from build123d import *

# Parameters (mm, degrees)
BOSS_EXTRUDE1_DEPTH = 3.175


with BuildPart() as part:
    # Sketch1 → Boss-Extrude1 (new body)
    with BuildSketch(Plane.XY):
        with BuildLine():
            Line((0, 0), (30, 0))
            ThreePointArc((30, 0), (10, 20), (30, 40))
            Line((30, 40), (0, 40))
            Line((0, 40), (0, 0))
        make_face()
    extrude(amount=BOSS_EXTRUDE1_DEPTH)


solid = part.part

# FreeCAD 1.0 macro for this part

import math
import FreeCAD as App
import Part
import Sketcher

V = App.Vector

doc = App.newDocument("Part")
params = doc.addObject("Spreadsheet::Sheet", "Params")
for row, (alias, value) in enumerate([
    ("sketch1_radius", "20 mm"),
    ("sketch1_width", "30 mm"),
    ("pad1_length", "3.175 mm"),
], start=1):
    params.set(f"A{row}", alias)
    params.set(f"B{row}", "=" + value)
    params.setAlias(f"B{row}", alias)

body = doc.addObject("PartDesign::Body", "Body")

sketch1 = body.newObject("Sketcher::SketchObject", "Sketch")
sketch1.AttachmentSupport = (doc.getObject("XY_Plane"), [""])
sketch1.MapMode = "FlatFace"
sketch1.addGeometry([
    Part.LineSegment(V(0, 0, 0), V(30, 0, 0)),
    Part.ArcOfCircle(Part.Circle(V(30, 20, 0), V(0, 0, 1), 20), math.radians(90), math.radians(270)),
    Part.LineSegment(V(30, 40, 0), V(0, 40, 0)),
    Part.LineSegment(V(0, 40, 0), V(0, 0, 0)),
], False)
sketch1.addConstraint([
    Sketcher.Constraint("Tangent", 0, 2, 1, 2),
    Sketcher.Constraint("Tangent", 1, 1, 2, 1),
    Sketcher.Constraint("Coincident", 2, 2, 3, 1),
    Sketcher.Constraint("Coincident", 3, 2, 0, 1),
    Sketcher.Constraint("Horizontal", 0),
    Sketcher.Constraint("Horizontal", 2),
    Sketcher.Constraint("Vertical", 3),
    Sketcher.Constraint("Coincident", 3, 2, -1, 1),
    Sketcher.Constraint("Radius", 1, 20.0),
    Sketcher.Constraint("DistanceX", 0, 1, 0, 2, 30.0),
])
sketch1.setExpression("Constraints[8]", "Params.sketch1_radius")
sketch1.setExpression("Constraints[9]", "Params.sketch1_width")
pad1 = body.newObject("PartDesign::Pad", "Pad")
pad1.Profile = sketch1
pad1.setExpression("Length", "Params.pad1_length")

doc.recompute()
